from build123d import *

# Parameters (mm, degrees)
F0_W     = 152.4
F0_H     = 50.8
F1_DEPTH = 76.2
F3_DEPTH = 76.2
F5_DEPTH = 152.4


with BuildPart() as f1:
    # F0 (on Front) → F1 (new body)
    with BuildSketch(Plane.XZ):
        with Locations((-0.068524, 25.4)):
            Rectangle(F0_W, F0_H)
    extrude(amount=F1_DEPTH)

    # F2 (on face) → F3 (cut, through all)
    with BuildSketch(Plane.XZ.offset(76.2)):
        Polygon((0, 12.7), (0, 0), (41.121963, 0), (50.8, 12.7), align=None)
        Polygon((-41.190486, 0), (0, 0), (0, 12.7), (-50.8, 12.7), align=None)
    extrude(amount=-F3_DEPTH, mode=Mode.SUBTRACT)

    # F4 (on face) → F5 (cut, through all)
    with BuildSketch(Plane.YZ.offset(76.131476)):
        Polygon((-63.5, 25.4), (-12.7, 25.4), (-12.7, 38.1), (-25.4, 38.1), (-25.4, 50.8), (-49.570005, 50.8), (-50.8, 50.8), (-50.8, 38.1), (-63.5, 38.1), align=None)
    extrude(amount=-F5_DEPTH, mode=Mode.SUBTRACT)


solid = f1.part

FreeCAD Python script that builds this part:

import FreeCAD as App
import Part
import Sketcher
Q = App.Units.Quantity

doc = App.newDocument("Part")
body = doc.addObject("PartDesign::Body", "Body")

sketch1 = body.newObject("Sketcher::SketchObject", "Sketch")
sketch1.AttachmentSupport = (doc.getObject("XZ_Plane"), [""])
sketch1.MapMode = "FlatFace"
sketch1.addGeometry(Part.LineSegment(App.Vector(-76, 51, 0), App.Vector(-76, 0, 0)), False)
sketch1.addGeometry(Part.LineSegment(App.Vector(-76, 0, 0), App.Vector(76, 0, 0)), False)
sketch1.addGeometry(Part.LineSegment(App.Vector(76, 0, 0), App.Vector(76, 51, 0)), False)
sketch1.addGeometry(Part.LineSegment(App.Vector(76, 51, 0), App.Vector(-76, 51, 0)), False)
sketch1.addConstraint(Sketcher.Constraint("Coincident", 0, 2, 1, 1))
sketch1.addConstraint(Sketcher.Constraint("Coincident", 1, 2, 2, 1))
sketch1.addConstraint(Sketcher.Constraint("Coincident", 2, 2, 3, 1))
sketch1.addConstraint(Sketcher.Constraint("Coincident", 3, 2, 0, 1))
sketch1.addConstraint(Sketcher.Constraint("Vertical", 0))
sketch1.addConstraint(Sketcher.Constraint("Horizontal", 1))
sketch1.addConstraint(Sketcher.Constraint("Vertical", 2))
sketch1.addConstraint(Sketcher.Constraint("Horizontal", 3))
sketch1.addConstraint(Sketcher.Constraint("PointOnObject", 0, 2, -1))
sketch1.addConstraint(Sketcher.Constraint("DistanceX", 1, 1, 1, 2, Q("6 in")))
sketch1.addConstraint(Sketcher.Constraint("DistanceY", 0, 2, 0, 1, Q("2 in")))
sketch1.addConstraint(Sketcher.Constraint("DistanceX", 0, 2, -1, 1, Q("76.268524 mm")))
pad1 = body.newObject("PartDesign::Pad", "Pad")
pad1.Profile = sketch1
pad1.Length = Q("3 in")

sketch2 = body.newObject("Sketcher::SketchObject", "Sketch001")
sketch2.AttachmentSupport = (doc.getObject("XZ_Plane"), [""])
sketch2.MapMode = "FlatFace"
sketch2.AttachmentOffset = App.Placement(App.Vector(0, 0, 3 * 25.4), App.Rotation())
sketch2.addGeometry(Part.LineSegment(App.Vector(41, 0, 0), App.Vector(51, 13, 0)), False)
sketch2.addGeometry(Part.LineSegment(App.Vector(51, 13, 0), App.Vector(-51, 13, 0)), False)
sketch2.addGeometry(Part.LineSegment(App.Vector(-51, 13, 0), App.Vector(-41, 0, 0)), False)
sketch2.addGeometry(Part.LineSegment(App.Vector(-41, 0, 0), App.Vector(41, 0, 0)), False)
sketch2.addConstraint(Sketcher.Constraint("Coincident", 0, 2, 1, 1))
sketch2.addConstraint(Sketcher.Constraint("Coincident", 1, 2, 2, 1))
sketch2.addConstraint(Sketcher.Constraint("Coincident", 2, 2, 3, 1))
sketch2.addConstraint(Sketcher.Constraint("Coincident", 3, 2, 0, 1))
sketch2.addConstraint(Sketcher.Constraint("Horizontal", 1))
sketch2.addConstraint(Sketcher.Constraint("Horizontal", 3))
sketch2.addConstraint(Sketcher.Constraint("PointOnObject", 2, 2, -1))
sketch2.addConstraint(Sketcher.Constraint("DistanceX", 1, 2, 1, 1, Q("4 in")))
sketch2.addConstraint(Sketcher.Constraint("DistanceX", -1, 1, 0, 2, Q("2 in")))
sketch2.addConstraint(Sketcher.Constraint("DistanceY", -1, 1, 0, 2, Q("0.5 in")))
sketch2.addConstraint(Sketcher.Constraint("DistanceX", 3, 1, 3, 2, Q("82.312449 mm")))
sketch2.addConstraint(Sketcher.Constraint("Distance", 0, Q("15.967292 mm")))
pocket1 = body.newObject("PartDesign::Pocket", "Pocket")
pocket1.Profile = sketch2
pocket1.Type = "ThroughAll"

sketch3 = body.newObject("Sketcher::SketchObject", "Sketch002")
sketch3.AttachmentSupport = (doc.getObject("YZ_Plane"), [""])
sketch3.MapMode = "FlatFace"
sketch3.AttachmentOffset = App.Placement(App.Vector(0, 0, 76.131476), App.Rotation())
sketch3.addGeometry(Part.LineSegment(App.Vector(-64, 25, 0), App.Vector(-13, 25, 0)), False)
sketch3.addGeometry(Part.LineSegment(App.Vector(-13, 25, 0), App.Vector(-13, 38, 0)), False)
sketch3.addGeometry(Part.LineSegment(App.Vector(-13, 38, 0), App.Vector(-25, 38, 0)), False)
sketch3.addGeometry(Part.LineSegment(App.Vector(-25, 38, 0), App.Vector(-25, 51, 0)), False)
sketch3.addGeometry(Part.LineSegment(App.Vector(-25, 51, 0), App.Vector(-51, 51, 0)), False)
sketch3.addGeometry(Part.LineSegment(App.Vector(-51, 51, 0), App.Vector(-51, 38, 0)), False)
sketch3.addGeometry(Part.LineSegment(App.Vector(-51, 38, 0), App.Vector(-64, 38, 0)), False)
sketch3.addGeometry(Part.LineSegment(App.Vector(-64, 38, 0), App.Vector(-64, 25, 0)), False)
sketch3.addConstraint(Sketcher.Constraint("Coincident", 0, 2, 1, 1))
sketch3.addConstraint(Sketcher.Constraint("Coincident", 1, 2, 2, 1))
sketch3.addConstraint(Sketcher.Constraint("Coincident", 2, 2, 3, 1))
sketch3.addConstraint(Sketcher.Constraint("Coincident", 3, 2, 4, 1))
sketch3.addConstraint(Sketcher.Constraint("Coincident", 4, 2, 5, 1))
sketch3.addConstraint(Sketcher.Constraint("Coincident", 5, 2, 6, 1))
sketch3.addConstraint(Sketcher.Constraint("Coincident", 6, 2, 7, 1))
sketch3.addConstraint(Sketcher.Constraint("Coincident", 7, 2, 0, 1))
sketch3.addConstraint(Sketcher.Constraint("Horizontal", 0))
sketch3.addConstraint(Sketcher.Constraint("Vertical", 1))
sketch3.addConstraint(Sketcher.Constraint("Horizontal", 2))
sketch3.addConstraint(Sketcher.Constraint("Vertical", 3))
sketch3.addConstraint(Sketcher.Constraint("Horizontal", 4))
sketch3.addConstraint(Sketcher.Constraint("Vertical", 5))
sketch3.addConstraint(Sketcher.Constraint("Horizontal", 6))
sketch3.addConstraint(Sketcher.Constraint("Vertical", 7))
sketch3.addConstraint(Sketcher.Constraint("Horizontal", 2, 2, 5, 2))
sketch3.addConstraint(Sketcher.Constraint("Equal", 2, 6))
sketch3.addConstraint(Sketcher.Constraint("Equal", 6, 1))
sketch3.addConstraint(Sketcher.Constraint("Equal", 1, 3))
sketch3.addConstraint(Sketcher.Constraint("DistanceX", 0, 1, 0, 2, Q("2 in")))
sketch3.addConstraint(Sketcher.Constraint("DistanceX", 4, 2, 4, 1, Q("1 in")))
sketch3.addConstraint(Sketcher.Constraint("DistanceY", -1, 1, 0, 2, Q("1 in")))
sketch3.addConstraint(Sketcher.Constraint("DistanceX", 2, 2, -1, 1, Q("1 in")))
pocket2 = body.newObject("PartDesign::Pocket", "Pocket001")
pocket2.Profile = sketch3
pocket2.Type = "ThroughAll"

doc.recompute()
